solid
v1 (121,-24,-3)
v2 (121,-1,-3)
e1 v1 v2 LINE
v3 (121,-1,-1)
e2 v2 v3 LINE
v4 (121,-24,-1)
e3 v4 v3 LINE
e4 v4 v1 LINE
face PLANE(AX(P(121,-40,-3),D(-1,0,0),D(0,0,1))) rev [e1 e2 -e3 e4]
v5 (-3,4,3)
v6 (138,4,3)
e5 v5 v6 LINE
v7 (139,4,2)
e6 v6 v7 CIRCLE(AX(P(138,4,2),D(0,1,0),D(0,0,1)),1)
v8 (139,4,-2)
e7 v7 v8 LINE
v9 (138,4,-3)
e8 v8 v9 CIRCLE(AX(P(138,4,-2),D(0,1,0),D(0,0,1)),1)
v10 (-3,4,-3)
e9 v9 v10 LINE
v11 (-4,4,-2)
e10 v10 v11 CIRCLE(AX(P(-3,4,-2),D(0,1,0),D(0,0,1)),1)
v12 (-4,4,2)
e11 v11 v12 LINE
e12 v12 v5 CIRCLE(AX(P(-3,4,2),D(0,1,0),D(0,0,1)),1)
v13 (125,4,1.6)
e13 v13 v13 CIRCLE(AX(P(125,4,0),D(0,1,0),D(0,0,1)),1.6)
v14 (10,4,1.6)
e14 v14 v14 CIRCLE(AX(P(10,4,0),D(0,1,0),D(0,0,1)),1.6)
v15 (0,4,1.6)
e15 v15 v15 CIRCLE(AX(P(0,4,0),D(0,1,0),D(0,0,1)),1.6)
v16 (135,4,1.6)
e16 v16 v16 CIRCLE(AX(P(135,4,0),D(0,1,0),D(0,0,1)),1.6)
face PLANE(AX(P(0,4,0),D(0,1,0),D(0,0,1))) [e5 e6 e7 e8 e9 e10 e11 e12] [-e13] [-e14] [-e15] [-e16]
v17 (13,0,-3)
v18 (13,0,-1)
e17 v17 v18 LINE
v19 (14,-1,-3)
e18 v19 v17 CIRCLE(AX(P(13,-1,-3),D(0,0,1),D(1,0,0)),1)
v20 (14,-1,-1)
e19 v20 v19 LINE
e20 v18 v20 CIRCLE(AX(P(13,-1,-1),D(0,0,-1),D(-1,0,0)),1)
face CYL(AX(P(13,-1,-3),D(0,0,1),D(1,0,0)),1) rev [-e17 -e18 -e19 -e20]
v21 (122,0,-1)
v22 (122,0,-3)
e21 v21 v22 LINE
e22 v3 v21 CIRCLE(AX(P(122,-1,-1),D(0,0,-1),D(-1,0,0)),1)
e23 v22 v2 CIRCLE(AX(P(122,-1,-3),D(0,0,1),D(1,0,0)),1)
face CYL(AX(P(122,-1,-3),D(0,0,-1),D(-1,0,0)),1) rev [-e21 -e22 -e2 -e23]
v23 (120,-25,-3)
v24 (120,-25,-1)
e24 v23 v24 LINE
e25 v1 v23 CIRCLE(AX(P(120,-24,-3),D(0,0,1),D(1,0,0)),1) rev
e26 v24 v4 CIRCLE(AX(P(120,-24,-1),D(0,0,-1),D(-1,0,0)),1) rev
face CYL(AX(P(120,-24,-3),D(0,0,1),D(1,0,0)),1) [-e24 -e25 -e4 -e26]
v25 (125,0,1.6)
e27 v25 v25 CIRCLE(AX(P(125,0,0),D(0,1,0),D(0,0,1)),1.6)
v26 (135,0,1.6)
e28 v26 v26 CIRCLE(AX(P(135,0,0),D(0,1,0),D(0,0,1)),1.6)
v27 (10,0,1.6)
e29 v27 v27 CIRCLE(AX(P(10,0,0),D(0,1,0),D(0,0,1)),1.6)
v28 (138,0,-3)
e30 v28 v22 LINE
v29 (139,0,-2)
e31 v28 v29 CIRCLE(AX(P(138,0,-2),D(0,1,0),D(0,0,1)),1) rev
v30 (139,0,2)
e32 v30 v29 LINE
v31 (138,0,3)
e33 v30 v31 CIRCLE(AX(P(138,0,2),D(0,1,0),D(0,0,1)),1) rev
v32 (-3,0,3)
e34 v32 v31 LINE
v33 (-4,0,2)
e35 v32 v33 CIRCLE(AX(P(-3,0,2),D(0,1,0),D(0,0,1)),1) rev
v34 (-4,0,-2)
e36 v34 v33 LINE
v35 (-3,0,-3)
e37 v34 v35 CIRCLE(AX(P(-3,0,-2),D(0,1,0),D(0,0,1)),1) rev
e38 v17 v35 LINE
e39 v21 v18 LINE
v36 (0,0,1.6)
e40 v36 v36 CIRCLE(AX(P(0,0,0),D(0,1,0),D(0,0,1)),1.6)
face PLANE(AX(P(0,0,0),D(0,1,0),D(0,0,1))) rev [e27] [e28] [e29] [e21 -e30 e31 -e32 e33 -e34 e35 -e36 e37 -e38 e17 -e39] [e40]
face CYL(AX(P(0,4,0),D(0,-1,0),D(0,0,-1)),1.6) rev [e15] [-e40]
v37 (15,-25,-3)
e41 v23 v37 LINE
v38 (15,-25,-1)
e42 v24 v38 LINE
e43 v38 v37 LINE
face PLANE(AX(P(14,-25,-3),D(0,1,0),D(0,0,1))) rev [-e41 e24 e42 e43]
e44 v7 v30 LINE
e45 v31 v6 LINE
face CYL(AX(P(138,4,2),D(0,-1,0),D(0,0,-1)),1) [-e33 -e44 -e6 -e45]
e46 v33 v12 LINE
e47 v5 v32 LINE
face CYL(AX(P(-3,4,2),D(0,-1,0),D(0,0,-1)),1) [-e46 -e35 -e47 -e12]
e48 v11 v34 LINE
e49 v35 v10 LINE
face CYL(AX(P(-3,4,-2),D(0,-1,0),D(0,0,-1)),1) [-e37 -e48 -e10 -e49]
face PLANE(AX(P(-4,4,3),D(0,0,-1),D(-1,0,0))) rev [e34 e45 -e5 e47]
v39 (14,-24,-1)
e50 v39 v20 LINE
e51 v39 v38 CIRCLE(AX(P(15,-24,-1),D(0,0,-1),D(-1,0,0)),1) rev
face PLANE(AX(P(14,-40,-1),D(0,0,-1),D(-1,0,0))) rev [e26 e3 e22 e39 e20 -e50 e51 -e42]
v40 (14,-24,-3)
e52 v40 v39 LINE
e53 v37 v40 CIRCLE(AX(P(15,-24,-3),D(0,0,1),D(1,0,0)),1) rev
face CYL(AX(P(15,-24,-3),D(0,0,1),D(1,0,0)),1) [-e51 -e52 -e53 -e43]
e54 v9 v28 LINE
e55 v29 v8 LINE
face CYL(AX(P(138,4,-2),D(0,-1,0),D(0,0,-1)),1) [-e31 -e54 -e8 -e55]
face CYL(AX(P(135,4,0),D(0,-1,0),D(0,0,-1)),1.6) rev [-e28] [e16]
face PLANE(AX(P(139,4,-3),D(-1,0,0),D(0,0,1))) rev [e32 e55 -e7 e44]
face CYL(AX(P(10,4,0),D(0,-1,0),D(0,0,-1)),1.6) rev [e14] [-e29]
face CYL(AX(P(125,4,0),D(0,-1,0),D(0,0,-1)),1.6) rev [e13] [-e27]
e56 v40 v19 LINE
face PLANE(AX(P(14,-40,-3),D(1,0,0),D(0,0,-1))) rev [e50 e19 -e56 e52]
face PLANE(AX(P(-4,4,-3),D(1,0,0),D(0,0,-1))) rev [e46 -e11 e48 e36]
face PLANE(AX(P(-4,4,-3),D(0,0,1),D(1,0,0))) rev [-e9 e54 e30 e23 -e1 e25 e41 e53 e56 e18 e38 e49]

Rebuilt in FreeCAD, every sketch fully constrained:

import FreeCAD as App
import Part
import Sketcher

V = App.Vector


def edges_at(feature, points):
    """Names of the edges that pass closest to the given points."""
    edges = feature.Shape.Edges
    near = lambda p: min(range(len(edges)), key=lambda i: edges[i].distToShape(Part.Vertex(*p))[0])
    return sorted({f"Edge{near(p) + 1}" for p in points})


def add_polygon(sketch, points):
    """Adds a closed chain of lines whose ends are joined by coincident constraints."""
    first, n = sketch.GeometryCount, len(points)
    for a, b in zip(points, points[1:] + points[:1]):
        sketch.addGeometry(Part.LineSegment(App.Vector(*a, 0), App.Vector(*b, 0)), False)
    for i in range(n):
        sketch.addConstraint(Sketcher.Constraint("Coincident", first + i, 2, first + (i + 1) % n, 1))

doc = App.newDocument("Part")
body = doc.addObject("PartDesign::Body", "Body")

sketch1 = doc.addObject("Sketcher::SketchObject", "Sketch")
body.addObject(sketch1)
sketch1.AttachmentSupport = (doc.XZ_Plane, [""])
sketch1.MapMode = "FlatFace"
add_polygon(sketch1, [(-4, -3), (-4, 3), (139, 3), (139, -3)])
sketch1.addGeometry(Part.Circle(V(0, 0, 0), V(0, 0, 1), 1.6), False)
sketch1.addGeometry(Part.Circle(V(10, 0, 0), V(0, 0, 1), 1.6), False)
sketch1.addGeometry(Part.Circle(V(125, 0, 0), V(0, 0, 1), 1.6), False)
sketch1.addGeometry(Part.Circle(V(135, 0, 0), V(0, 0, 1), 1.6), False)
sketch1.addConstraint([
    Sketcher.Constraint("Vertical", 0),
    Sketcher.Constraint("Horizontal", 1),
    Sketcher.Constraint("Vertical", 2),
    Sketcher.Constraint("Horizontal", 3),
    Sketcher.Constraint("Coincident", 4, 3, -1, 1),
    Sketcher.Constraint("Equal", 4, 5),
    Sketcher.Constraint("Equal", 5, 6),
    Sketcher.Constraint("Equal", 6, 7),
    Sketcher.Constraint("PointOnObject", 5, 3, -1),
    Sketcher.Constraint("PointOnObject", 6, 3, -1),
    Sketcher.Constraint("PointOnObject", 7, 3, -1),
    Sketcher.Constraint("Diameter", 4, 3.2),
    Sketcher.Constraint("DistanceX", 1, 1, 1, 2, 143.0),
    Sketcher.Constraint("DistanceY", 0, 1, 0, 2, 6.0),
    Sketcher.Constraint("DistanceX", -1, 1, 5, 3, 10.0),
    Sketcher.Constraint("DistanceX", -1, 1, 6, 3, 125.0),
    Sketcher.Constraint("DistanceX", -1, 1, 7, 3, 135.0),
    Sketcher.Constraint("DistanceX", 0, 2, -1, 1, 4.0),
    Sketcher.Constraint("DistanceY", -1, 1, 0, 2, 3.0),
])
pad1 = doc.addObject("PartDesign::Pad", "Pad")
body.addObject(pad1)
pad1.Profile = sketch1
pad1.Length = 4
pad1.Reversed = True

sketch2 = doc.addObject("Sketcher::SketchObject", "Sketch001")
body.addObject(sketch2)
sketch2.AttachmentSupport = (doc.XZ_Plane, [""])
sketch2.MapMode = "FlatFace"
add_polygon(sketch2, [(14, -1), (14, -3), (121, -3), (121, -1)])
sketch2.addConstraint([
    Sketcher.Constraint("Vertical", 0),
    Sketcher.Constraint("Horizontal", 1),
    Sketcher.Constraint("Vertical", 2),
    Sketcher.Constraint("Horizontal", 3),
    Sketcher.Constraint("DistanceX", 1, 1, 1, 2, 107.0),
    Sketcher.Constraint("DistanceY", 0, 2, 0, 1, 2.0),
    Sketcher.Constraint("DistanceX", -1, 1, 0, 2, 14.0),
    Sketcher.Constraint("DistanceY", 0, 2, -1, 1, 3.0),
])
pad2 = doc.addObject("PartDesign::Pad", "Pad001")
body.addObject(pad2)
pad2.Profile = sketch2
pad2.Length = 40

sketch3 = doc.addObject("Sketcher::SketchObject", "Sketch002")
body.addObject(sketch3)
sketch3.AttachmentSupport = (doc.XY_Plane, [""])
sketch3.MapMode = "FlatFace"
sketch3.AttachmentOffset = App.Placement(V(0, 0, -1), App.Rotation())
add_polygon(sketch3, [(14, -25), (14, -40), (121, -40), (121, -25)])
sketch3.addConstraint([
    Sketcher.Constraint("Vertical", 0),
    Sketcher.Constraint("Horizontal", 1),
    Sketcher.Constraint("Vertical", 2),
    Sketcher.Constraint("Horizontal", 3),
    Sketcher.Constraint("DistanceX", 1, 1, 1, 2, 107.0),
    Sketcher.Constraint("DistanceY", 0, 2, 0, 1, 15.0),
    Sketcher.Constraint("DistanceX", -1, 1, 0, 2, 14.0),
    Sketcher.Constraint("DistanceY", 0, 2, -1, 1, 40.0),
])
pocket1 = doc.addObject("PartDesign::Pocket", "Pocket")
body.addObject(pocket1)
pocket1.Profile = sketch3
pocket1.Type = "ThroughAll"
doc.recompute()

fillet = doc.addObject("PartDesign::Fillet", "Fillet")
body.addObject(fillet)
fillet.Base = (pocket1, edges_at(pocket1, [
    (14, 0, -2),
    (121, 0, -2),
    (14, -25, -2),
    (121, -25, -2),
    (-4, 2, -3),
    (139, 2, -3),
    (139, 2, 3),
    (-4, 2, 3),
]))
fillet.Radius = 1

doc.recompute()
